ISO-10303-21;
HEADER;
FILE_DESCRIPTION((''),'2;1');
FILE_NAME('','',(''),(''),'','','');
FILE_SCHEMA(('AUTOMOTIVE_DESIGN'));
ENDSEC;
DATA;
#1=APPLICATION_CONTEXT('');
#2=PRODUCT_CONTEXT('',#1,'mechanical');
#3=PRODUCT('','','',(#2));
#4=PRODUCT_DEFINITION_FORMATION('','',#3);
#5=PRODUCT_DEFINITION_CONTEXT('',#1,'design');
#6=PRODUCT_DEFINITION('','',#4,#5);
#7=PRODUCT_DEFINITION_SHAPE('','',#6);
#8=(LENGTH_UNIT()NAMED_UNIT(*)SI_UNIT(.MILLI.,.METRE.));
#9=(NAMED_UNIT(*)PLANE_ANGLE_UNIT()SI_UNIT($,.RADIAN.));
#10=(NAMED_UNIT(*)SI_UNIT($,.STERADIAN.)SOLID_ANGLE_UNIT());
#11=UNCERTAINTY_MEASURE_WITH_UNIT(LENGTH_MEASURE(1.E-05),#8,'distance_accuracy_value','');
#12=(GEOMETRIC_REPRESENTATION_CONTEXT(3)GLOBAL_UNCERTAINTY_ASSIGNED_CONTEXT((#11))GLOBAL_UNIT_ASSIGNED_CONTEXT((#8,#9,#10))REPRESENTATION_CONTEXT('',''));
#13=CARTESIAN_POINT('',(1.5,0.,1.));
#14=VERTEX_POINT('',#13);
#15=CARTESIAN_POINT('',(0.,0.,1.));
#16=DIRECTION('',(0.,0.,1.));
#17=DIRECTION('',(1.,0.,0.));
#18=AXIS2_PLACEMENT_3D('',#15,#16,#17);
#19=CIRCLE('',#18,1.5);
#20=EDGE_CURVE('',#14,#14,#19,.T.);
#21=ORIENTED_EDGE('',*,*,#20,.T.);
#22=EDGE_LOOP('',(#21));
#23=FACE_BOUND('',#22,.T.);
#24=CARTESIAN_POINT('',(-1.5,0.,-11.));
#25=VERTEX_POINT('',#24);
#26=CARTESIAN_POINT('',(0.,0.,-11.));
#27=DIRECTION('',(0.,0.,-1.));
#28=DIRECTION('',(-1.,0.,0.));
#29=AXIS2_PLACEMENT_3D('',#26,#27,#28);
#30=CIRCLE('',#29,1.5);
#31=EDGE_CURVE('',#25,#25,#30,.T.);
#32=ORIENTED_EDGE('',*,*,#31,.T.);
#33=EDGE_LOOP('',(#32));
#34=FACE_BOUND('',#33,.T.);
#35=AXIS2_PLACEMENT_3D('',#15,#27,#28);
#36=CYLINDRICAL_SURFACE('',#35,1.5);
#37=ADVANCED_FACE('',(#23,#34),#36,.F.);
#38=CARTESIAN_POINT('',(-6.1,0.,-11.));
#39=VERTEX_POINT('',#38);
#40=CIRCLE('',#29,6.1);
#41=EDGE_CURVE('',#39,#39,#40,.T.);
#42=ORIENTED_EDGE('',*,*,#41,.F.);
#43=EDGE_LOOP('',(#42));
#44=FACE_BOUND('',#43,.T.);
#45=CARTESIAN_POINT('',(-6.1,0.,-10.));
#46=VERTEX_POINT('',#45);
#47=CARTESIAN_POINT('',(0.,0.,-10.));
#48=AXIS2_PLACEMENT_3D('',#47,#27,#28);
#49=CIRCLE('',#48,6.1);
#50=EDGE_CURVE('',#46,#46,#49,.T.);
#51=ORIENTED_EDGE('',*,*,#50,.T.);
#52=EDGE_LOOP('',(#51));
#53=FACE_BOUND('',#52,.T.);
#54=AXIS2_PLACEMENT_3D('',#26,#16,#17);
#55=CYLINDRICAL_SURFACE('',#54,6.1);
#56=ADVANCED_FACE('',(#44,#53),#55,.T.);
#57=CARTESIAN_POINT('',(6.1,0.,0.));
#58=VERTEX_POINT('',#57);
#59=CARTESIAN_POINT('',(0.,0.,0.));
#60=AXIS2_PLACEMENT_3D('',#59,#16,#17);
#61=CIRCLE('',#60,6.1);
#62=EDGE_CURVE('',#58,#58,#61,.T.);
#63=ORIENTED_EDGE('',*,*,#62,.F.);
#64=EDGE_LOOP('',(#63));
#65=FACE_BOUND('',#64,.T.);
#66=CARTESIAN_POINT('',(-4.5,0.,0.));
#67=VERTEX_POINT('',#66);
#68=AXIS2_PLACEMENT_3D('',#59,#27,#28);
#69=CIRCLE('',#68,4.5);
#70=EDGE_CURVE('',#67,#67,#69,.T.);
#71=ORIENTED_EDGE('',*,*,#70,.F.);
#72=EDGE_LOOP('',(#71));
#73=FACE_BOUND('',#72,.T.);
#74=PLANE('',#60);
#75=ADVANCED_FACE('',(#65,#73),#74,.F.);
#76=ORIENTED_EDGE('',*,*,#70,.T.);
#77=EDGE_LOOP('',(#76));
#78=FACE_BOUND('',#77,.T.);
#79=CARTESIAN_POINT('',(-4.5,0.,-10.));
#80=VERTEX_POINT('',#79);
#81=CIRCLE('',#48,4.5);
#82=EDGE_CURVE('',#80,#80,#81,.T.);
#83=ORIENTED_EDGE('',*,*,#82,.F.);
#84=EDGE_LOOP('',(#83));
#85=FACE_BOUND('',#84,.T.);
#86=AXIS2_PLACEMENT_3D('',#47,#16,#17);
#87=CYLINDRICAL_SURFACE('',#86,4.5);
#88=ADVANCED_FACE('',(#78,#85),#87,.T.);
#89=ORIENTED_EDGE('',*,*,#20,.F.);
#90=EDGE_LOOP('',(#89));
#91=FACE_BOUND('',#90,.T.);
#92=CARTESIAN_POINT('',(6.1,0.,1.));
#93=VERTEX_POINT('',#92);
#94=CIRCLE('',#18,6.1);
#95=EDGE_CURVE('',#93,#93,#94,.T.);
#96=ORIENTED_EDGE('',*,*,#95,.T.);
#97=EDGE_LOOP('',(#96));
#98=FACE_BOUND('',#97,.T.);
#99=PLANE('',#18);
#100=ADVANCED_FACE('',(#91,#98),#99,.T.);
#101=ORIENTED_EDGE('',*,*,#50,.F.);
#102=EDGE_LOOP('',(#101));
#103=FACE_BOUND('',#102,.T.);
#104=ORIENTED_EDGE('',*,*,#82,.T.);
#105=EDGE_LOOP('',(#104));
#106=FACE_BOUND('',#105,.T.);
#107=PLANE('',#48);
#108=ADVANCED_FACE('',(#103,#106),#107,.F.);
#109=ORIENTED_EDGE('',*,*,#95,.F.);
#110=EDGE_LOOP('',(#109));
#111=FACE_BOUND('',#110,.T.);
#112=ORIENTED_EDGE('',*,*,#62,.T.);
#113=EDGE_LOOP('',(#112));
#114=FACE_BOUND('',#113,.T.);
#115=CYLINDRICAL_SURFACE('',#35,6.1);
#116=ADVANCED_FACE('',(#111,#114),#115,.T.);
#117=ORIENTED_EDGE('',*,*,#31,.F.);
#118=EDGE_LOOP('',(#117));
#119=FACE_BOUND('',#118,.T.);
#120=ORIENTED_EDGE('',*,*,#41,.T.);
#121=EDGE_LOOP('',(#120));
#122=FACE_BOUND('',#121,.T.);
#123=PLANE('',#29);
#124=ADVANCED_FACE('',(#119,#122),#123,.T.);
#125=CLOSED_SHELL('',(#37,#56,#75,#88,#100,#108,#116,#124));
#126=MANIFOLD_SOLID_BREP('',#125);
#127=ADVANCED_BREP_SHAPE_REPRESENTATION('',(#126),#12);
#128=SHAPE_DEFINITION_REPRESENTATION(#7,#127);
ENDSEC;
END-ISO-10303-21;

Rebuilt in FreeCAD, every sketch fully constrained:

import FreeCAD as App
import Part
import Sketcher
from FreeCAD import Vector
Q = App.Units.Quantity

doc = App.newDocument("Part")
body = doc.addObject("PartDesign::Body", "Body")

# Sketch on XY plane
sketch1 = doc.addObject("Sketcher::SketchObject", "Sketch")
body.addObject(sketch1)
sketch1.AttachmentSupport = (doc.XY_Plane, [""])
sketch1.MapMode = "FlatFace"
sketch1.addGeometry(Part.Circle(Vector(0, 0, 0), Vector(0, 0, 1), 6.1), False)
sketch1.addGeometry(Part.Circle(Vector(0, 0, 0), Vector(0, 0, 1), 1.5), False)
sketch1.addConstraint(Sketcher.Constraint("Coincident", 0, 3, -1, 1))
sketch1.addConstraint(Sketcher.Constraint("Coincident", 1, 3, -1, 1))
sketch1.addConstraint(Sketcher.Constraint("Diameter", 1, Q("3 mm")))
sketch1.addConstraint(Sketcher.Constraint("Diameter", 0, Q("12.2 mm")))
pad1 = doc.addObject("PartDesign::Pad", "Pad")
body.addObject(pad1)
pad1.Profile = sketch1
pad1.Length = 1

# Sketch on XY plane
sketch2 = doc.addObject("Sketcher::SketchObject", "Sketch001")
body.addObject(sketch2)
sketch2.AttachmentSupport = (doc.XY_Plane, [""])
sketch2.MapMode = "FlatFace"
sketch2.AttachmentOffset = App.Placement(Vector(0, 0, -10), App.Rotation())
sketch2.addGeometry(Part.Circle(Vector(0, 0, 0), Vector(0, 0, 1), 4.5), False)
sketch2.addGeometry(Part.Circle(Vector(0, 0, 0), Vector(0, 0, 1), 1.5), False)
sketch2.addConstraint(Sketcher.Constraint("Coincident", 0, 3, -1, 1))
sketch2.addConstraint(Sketcher.Constraint("Coincident", 1, 3, -1, 1))
sketch2.addConstraint(Sketcher.Constraint("Diameter", 0, Q("9 mm")))
sketch2.addConstraint(Sketcher.Constraint("Diameter", 1, Q("3 mm")))
pad2 = doc.addObject("PartDesign::Pad", "Pad001")
body.addObject(pad2)
pad2.Profile = sketch2
pad2.Length = 10

# Sketch on XY plane
sketch3 = doc.addObject("Sketcher::SketchObject", "Sketch002")
body.addObject(sketch3)
sketch3.AttachmentSupport = (doc.XY_Plane, [""])
sketch3.MapMode = "FlatFace"
sketch3.AttachmentOffset = App.Placement(Vector(0, 0, -11), App.Rotation())
sketch3.addGeometry(Part.Circle(Vector(0, 0, 0), Vector(0, 0, 1), 6.1), False)
sketch3.addGeometry(Part.Circle(Vector(0, 0, 0), Vector(0, 0, 1), 1.5), False)
sketch3.addConstraint(Sketcher.Constraint("Coincident", 0, 3, -1, 1))
sketch3.addConstraint(Sketcher.Constraint("Coincident", 1, 3, -1, 1))
sketch3.addConstraint(Sketcher.Constraint("Diameter", 1, Q("3 mm")))
sketch3.addConstraint(Sketcher.Constraint("Diameter", 0, Q("12.2 mm")))
pad3 = doc.addObject("PartDesign::Pad", "Pad002")
body.addObject(pad3)
pad3.Profile = sketch3
pad3.Length = 1

doc.recompute()
